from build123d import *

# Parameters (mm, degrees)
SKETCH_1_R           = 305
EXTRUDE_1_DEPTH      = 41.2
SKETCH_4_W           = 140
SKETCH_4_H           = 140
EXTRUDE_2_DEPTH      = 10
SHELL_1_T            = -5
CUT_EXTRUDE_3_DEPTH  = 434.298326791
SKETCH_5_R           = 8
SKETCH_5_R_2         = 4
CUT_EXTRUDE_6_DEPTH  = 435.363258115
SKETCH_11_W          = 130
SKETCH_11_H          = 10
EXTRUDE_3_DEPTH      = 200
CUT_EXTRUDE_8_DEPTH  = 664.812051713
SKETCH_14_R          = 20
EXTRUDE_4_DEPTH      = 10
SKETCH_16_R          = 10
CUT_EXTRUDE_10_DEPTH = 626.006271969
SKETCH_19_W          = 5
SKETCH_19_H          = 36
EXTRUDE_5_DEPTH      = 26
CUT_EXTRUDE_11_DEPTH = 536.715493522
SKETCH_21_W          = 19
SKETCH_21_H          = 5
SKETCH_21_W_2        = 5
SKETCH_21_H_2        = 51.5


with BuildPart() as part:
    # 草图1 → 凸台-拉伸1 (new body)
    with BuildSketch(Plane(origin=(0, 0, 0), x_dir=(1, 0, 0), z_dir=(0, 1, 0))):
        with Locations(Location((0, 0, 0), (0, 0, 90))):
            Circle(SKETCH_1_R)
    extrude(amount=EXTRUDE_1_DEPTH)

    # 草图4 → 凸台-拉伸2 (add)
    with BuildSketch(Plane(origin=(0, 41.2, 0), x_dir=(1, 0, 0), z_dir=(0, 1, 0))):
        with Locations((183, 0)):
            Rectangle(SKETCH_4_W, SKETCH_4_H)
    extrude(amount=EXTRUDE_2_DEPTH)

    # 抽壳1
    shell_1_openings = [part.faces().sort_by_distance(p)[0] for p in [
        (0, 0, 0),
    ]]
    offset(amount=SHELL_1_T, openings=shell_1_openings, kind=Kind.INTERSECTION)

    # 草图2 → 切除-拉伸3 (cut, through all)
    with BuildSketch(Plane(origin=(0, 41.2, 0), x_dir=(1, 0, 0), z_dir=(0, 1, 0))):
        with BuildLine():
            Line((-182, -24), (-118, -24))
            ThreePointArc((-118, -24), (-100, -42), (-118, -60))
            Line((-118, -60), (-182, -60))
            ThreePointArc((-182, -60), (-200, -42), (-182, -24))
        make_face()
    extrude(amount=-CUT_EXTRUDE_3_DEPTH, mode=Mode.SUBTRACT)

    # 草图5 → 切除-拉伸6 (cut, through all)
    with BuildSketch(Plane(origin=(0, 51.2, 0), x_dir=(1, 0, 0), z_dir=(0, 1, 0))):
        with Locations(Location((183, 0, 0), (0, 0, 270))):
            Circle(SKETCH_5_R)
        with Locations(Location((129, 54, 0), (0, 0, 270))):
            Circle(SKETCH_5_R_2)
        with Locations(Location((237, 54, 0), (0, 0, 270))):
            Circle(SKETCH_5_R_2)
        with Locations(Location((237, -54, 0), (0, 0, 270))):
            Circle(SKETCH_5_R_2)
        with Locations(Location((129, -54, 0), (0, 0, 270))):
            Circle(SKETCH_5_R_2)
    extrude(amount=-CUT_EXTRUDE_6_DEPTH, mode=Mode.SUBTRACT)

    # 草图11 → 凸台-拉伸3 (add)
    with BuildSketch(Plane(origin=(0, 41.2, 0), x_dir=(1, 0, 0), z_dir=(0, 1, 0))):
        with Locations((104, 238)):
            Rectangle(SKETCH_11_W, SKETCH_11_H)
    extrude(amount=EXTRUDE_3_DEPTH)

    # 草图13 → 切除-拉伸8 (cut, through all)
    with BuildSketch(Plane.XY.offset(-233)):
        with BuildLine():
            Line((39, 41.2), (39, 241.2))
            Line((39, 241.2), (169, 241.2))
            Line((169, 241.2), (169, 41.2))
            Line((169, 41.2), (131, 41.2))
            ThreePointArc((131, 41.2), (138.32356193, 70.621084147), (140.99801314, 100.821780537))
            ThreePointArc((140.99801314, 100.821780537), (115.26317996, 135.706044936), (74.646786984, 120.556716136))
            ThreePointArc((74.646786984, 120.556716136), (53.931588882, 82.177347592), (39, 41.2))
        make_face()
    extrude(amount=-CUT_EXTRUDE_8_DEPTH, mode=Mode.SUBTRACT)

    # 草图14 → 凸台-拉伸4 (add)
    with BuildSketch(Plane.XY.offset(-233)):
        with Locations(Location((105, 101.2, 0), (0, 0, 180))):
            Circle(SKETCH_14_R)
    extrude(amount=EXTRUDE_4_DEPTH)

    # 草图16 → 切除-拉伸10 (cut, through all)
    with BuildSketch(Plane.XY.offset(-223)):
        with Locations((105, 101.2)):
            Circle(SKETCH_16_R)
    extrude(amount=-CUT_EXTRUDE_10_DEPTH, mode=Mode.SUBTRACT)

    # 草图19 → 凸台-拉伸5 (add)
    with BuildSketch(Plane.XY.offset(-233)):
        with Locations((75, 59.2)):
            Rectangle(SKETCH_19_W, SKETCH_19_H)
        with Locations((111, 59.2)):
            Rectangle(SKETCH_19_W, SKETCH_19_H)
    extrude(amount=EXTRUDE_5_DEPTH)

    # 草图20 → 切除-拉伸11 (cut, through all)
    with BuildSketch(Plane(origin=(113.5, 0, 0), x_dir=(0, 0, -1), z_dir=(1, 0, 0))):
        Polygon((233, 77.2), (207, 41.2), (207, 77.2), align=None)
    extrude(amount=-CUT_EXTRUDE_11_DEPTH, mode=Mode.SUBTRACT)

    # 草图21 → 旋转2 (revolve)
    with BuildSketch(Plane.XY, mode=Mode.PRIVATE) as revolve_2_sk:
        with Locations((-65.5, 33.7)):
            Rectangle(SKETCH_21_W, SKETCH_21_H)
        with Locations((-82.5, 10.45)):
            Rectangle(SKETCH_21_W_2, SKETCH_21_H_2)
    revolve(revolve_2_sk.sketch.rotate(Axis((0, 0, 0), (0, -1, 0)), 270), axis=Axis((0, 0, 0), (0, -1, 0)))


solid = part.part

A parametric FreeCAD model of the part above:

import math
import FreeCAD as App
import Part
import Sketcher

V = App.Vector
Q = App.Units.Quantity


def faces_at(feature, points):
    """Names of the faces that lie closest to the given points."""
    faces = feature.Shape.Faces
    near = lambda p: min(range(len(faces)), key=lambda i: faces[i].distToShape(Part.Vertex(*p))[0])
    return sorted({f"Face{near(p) + 1}" for p in points})

doc = App.newDocument("Part")
body = doc.addObject("PartDesign::Body", "Body")

# Sketch on XZ plane
sketch1 = doc.addObject("Sketcher::SketchObject", "Sketch")
body.addObject(sketch1)
sketch1.AttachmentSupport = (doc.XZ_Plane, [""])
sketch1.MapMode = "FlatFace"
sketch1.addGeometry(Part.Circle(V(0, 0, 0), V(0, 0, 1), 305), False)
sketch1.addConstraint([
    Sketcher.Constraint("Coincident", 0, 3, -1, 1),
    Sketcher.Constraint("Diameter", 0, Q("610 mm")),
])
pad1 = doc.addObject("PartDesign::Pad", "Pad")
body.addObject(pad1)
pad1.Profile = sketch1
pad1.Length = 41.2
pad1.Reversed = True

# Sketch on XZ plane
sketch2 = doc.addObject("Sketcher::SketchObject", "Sketch001")
body.addObject(sketch2)
sketch2.AttachmentSupport = (doc.XZ_Plane, [""])
sketch2.MapMode = "FlatFace"
sketch2.AttachmentOffset = App.Placement(V(0, 0, -41.2), App.Rotation())
sketch2.addGeometry([
    Part.LineSegment(V(113, -70, 0), V(113, 70, 0)),
    Part.LineSegment(V(113, 70, 0), V(253, 70, 0)),
    Part.LineSegment(V(253, 70, 0), V(253, -70, 0)),
    Part.LineSegment(V(253, -70, 0), V(113, -70, 0)),
], False)
sketch2.addConstraint([
    Sketcher.Constraint("Coincident", 0, 2, 1, 1),
    Sketcher.Constraint("Coincident", 1, 2, 2, 1),
    Sketcher.Constraint("Coincident", 2, 2, 3, 1),
    Sketcher.Constraint("Coincident", 3, 2, 0, 1),
    Sketcher.Constraint("Vertical", 0),
    Sketcher.Constraint("Horizontal", 1),
    Sketcher.Constraint("Vertical", 2),
    Sketcher.Constraint("Horizontal", 3),
    Sketcher.Constraint("Equal", 3, 0),
    Sketcher.Constraint("DistanceX", 1, 1, 1, 2, Q("140 mm")),
    Sketcher.Constraint("DistanceX", -1, 1, 0, 2, Q("113 mm")),
    Sketcher.Constraint("DistanceY", -1, 1, 0, 2, Q("70 mm")),
])
pad2 = doc.addObject("PartDesign::Pad", "Pad001")
body.addObject(pad2)
pad2.Profile = sketch2
pad2.Length = 10
pad2.Reversed = True
doc.recompute()

thickness = doc.addObject("PartDesign::Thickness", "Thickness")
body.addObject(thickness)
thickness.Base = (pad2, faces_at(pad2, [(0, 0, 0)]))
thickness.Value = 5
thickness.Reversed = True
thickness.Join = "Intersection"

# Sketch on XZ plane
sketch3 = doc.addObject("Sketcher::SketchObject", "Sketch002")
body.addObject(sketch3)
sketch3.AttachmentSupport = (doc.XZ_Plane, [""])
sketch3.MapMode = "FlatFace"
sketch3.AttachmentOffset = App.Placement(V(0, 0, -41.2), App.Rotation())
sketch3.addGeometry([
    Part.LineSegment(V(-118, 24, 0), V(-182, 24, 0)),
    Part.ArcOfCircle(Part.Circle(V(-182, 42, 0), V(0, 0, 1), 18), math.radians(90), math.radians(270)),
    Part.LineSegment(V(-182, 60, 0), V(-118, 60, 0)),
    Part.ArcOfCircle(Part.Circle(V(-118, 42, 0), V(0, 0, 1), 18), math.radians(-90), math.radians(90)),
], False)
sketch3.addConstraint([
    Sketcher.Constraint("Tangent", 0, 2, 1, 2),
    Sketcher.Constraint("Tangent", 1, 1, 2, 1),
    Sketcher.Constraint("Tangent", 2, 2, 3, 2),
    Sketcher.Constraint("Tangent", 3, 1, 0, 1),
    Sketcher.Constraint("Horizontal", 0),
    Sketcher.Constraint("Horizontal", 2),
    Sketcher.Constraint("Radius", 1, Q("18 mm")),
    Sketcher.Constraint("DistanceX", 0, 2, 0, 1, Q("64 mm")),
    Sketcher.Constraint("DistanceX", 1, 3, -1, 1, Q("182 mm")),
    Sketcher.Constraint("DistanceY", -1, 1, 1, 3, Q("42 mm")),
])
pocket1 = doc.addObject("PartDesign::Pocket", "Pocket")
body.addObject(pocket1)
pocket1.Profile = sketch3
pocket1.Type = "ThroughAll"
pocket1.Reversed = True

# Sketch on XZ plane
sketch4 = doc.addObject("Sketcher::SketchObject", "Sketch003")
body.addObject(sketch4)
sketch4.AttachmentSupport = (doc.XZ_Plane, [""])
sketch4.MapMode = "FlatFace"
sketch4.AttachmentOffset = App.Placement(V(0, 0, -51.2), App.Rotation())
sketch4.addGeometry([
    Part.Circle(V(183, 0, 0), V(0, 0, 1), 8),  # 0
    Part.Circle(V(129, -54, 0), V(0, 0, 1), 4),  # 1
    Part.Circle(V(237, -54, 0), V(0, 0, 1), 4),  # 2
    Part.Circle(V(237, 54, 0), V(0, 0, 1), 4),  # 3
    Part.Circle(V(129, 54, 0), V(0, 0, 1), 4),  # 4
], False)
sketch4.addConstraint([
    Sketcher.Constraint("Equal", 1, 2),
    Sketcher.Constraint("Equal", 2, 3),
    Sketcher.Constraint("Equal", 3, 4),
    Sketcher.Constraint("Symmetric", 2, 3, 3, 3, -1),
    Sketcher.Constraint("Symmetric", 1, 3, 4, 3, -1),
    Sketcher.Constraint("PointOnObject", 0, 3, -1),
    Sketcher.Constraint("Horizontal", 1, 3, 2, 3),
    Sketcher.Constraint("Diameter", 0, Q("16 mm")),
    Sketcher.Constraint("Diameter", 1, Q("8 mm")),
    Sketcher.Constraint("DistanceX", -1, 1, 0, 3, Q("183 mm")),
    Sketcher.Constraint("DistanceX", -1, 1, 1, 3, Q("129 mm")),
    Sketcher.Constraint("DistanceY", 1, 3, -1, 1, Q("54 mm")),
    Sketcher.Constraint("DistanceX", -1, 1, 2, 3, Q("237 mm")),
])
pocket2 = doc.addObject("PartDesign::Pocket", "Pocket001")
body.addObject(pocket2)
pocket2.Profile = sketch4
pocket2.Type = "ThroughAll"
pocket2.Reversed = True

# Sketch on XZ plane
sketch5 = doc.addObject("Sketcher::SketchObject", "Sketch004")
body.addObject(sketch5)
sketch5.AttachmentSupport = (doc.XZ_Plane, [""])
sketch5.MapMode = "FlatFace"
sketch5.AttachmentOffset = App.Placement(V(0, 0, -41.2), App.Rotation())
sketch5.addGeometry([
    Part.LineSegment(V(39, -243, 0), V(39, -233, 0)),
    Part.LineSegment(V(39, -233, 0), V(169, -233, 0)),
    Part.LineSegment(V(169, -233, 0), V(169, -243, 0)),
    Part.LineSegment(V(169, -243, 0), V(39, -243, 0)),
], False)
sketch5.addConstraint([
    Sketcher.Constraint("Coincident", 0, 2, 1, 1),
    Sketcher.Constraint("Coincident", 1, 2, 2, 1),
    Sketcher.Constraint("Coincident", 2, 2, 3, 1),
    Sketcher.Constraint("Coincident", 3, 2, 0, 1),
    Sketcher.Constraint("Vertical", 0),
    Sketcher.Constraint("Horizontal", 1),
    Sketcher.Constraint("Vertical", 2),
    Sketcher.Constraint("Horizontal", 3),
    Sketcher.Constraint("DistanceX", 1, 1, 1, 2, Q("130 mm")),
    Sketcher.Constraint("DistanceY", 0, 1, 0, 2, Q("10 mm")),
    Sketcher.Constraint("DistanceX", -1, 1, 0, 2, Q("39 mm")),
    Sketcher.Constraint("DistanceY", 0, 2, -1, 1, Q("233 mm")),
])
pad3 = doc.addObject("PartDesign::Pad", "Pad002")
body.addObject(pad3)
pad3.Profile = sketch5
pad3.Length = 200
pad3.Reversed = True

# Sketch on XY plane
sketch6 = doc.addObject("Sketcher::SketchObject", "Sketch005")
body.addObject(sketch6)
sketch6.AttachmentSupport = (doc.XY_Plane, [""])
sketch6.MapMode = "FlatFace"
sketch6.AttachmentOffset = App.Placement(V(0, 0, -233), App.Rotation())
sketch6.addGeometry([
    Part.LineSegment(V(39, 241, 0), V(39, 41, 0)),  # 0
    Part.ArcOfCircle(Part.Circle(V(328, -41, 0), V(0, 0, 1), 300), math.radians(147.47), math.radians(164.15)),  # 1
    Part.ArcOfCircle(Part.Circle(V(105, 101, 0), V(0, 0, 1), 36), math.radians(-1), math.radians(147)),  # 2
    Part.ArcOfCircle(Part.Circle(V(-54, 103, 0), V(0, 0, 1), 195), math.radians(-18.44), math.radians(-0.6)),  # 3
    Part.LineSegment(V(131, 41, 0), V(169, 41, 0)),  # 4
    Part.LineSegment(V(169, 41, 0), V(169, 241, 0)),  # 5
    Part.LineSegment(V(169, 241, 0), V(39, 241, 0)),  # 6
], False)
sketch6.addConstraint([
    Sketcher.Constraint("Coincident", 0, 2, 1, 2),
    Sketcher.Constraint("Tangent", 1, 1, 2, 2),
    Sketcher.Constraint("Tangent", 2, 1, 3, 2),
    Sketcher.Constraint("Coincident", 3, 1, 4, 1),
    Sketcher.Constraint("Coincident", 4, 2, 5, 1),
    Sketcher.Constraint("Coincident", 5, 2, 6, 1),
    Sketcher.Constraint("Coincident", 6, 2, 0, 1),
    Sketcher.Constraint("Vertical", 0),
    Sketcher.Constraint("Horizontal", 4),
    Sketcher.Constraint("Vertical", 5),
    Sketcher.Constraint("Horizontal", 6),
    Sketcher.Constraint("Horizontal", 0, 2, 3, 1),
    Sketcher.Constraint("Radius", 1, Q("300 mm")),
    Sketcher.Constraint("Radius", 2, Q("36 mm")),
    Sketcher.Constraint("Radius", 3, Q("195 mm")),
    Sketcher.Constraint("DistanceX", 4, 1, 4, 2, Q("38 mm")),
    Sketcher.Constraint("DistanceX", 6, 2, 6, 1, Q("130 mm")),
    Sketcher.Constraint("DistanceY", 0, 2, 0, 1, Q("200 mm")),
    Sketcher.Constraint("DistanceX", -1, 1, 2, 3, Q("105 mm")),
    Sketcher.Constraint("DistanceX", -1, 1, 0, 2, Q("39 mm")),
    Sketcher.Constraint("DistanceY", 0, 2, 2, 3, Q("60 mm")),
    Sketcher.Constraint("DistanceY", -1, 1, 2, 3, Q("101.2 mm")),
])
pocket3 = doc.addObject("PartDesign::Pocket", "Pocket002")
body.addObject(pocket3)
pocket3.Profile = sketch6
pocket3.Type = "ThroughAll"

# Sketch on XY plane
sketch7 = doc.addObject("Sketcher::SketchObject", "Sketch006")
body.addObject(sketch7)
sketch7.AttachmentSupport = (doc.XY_Plane, [""])
sketch7.MapMode = "FlatFace"
sketch7.AttachmentOffset = App.Placement(V(0, 0, -233), App.Rotation())
sketch7.addGeometry(Part.Circle(V(105, 101, 0), V(0, 0, 1), 20), False)
sketch7.addConstraint([
    Sketcher.Constraint("Diameter", 0, Q("40 mm")),
    Sketcher.Constraint("DistanceX", -1, 1, 0, 3, Q("105 mm")),
    Sketcher.Constraint("DistanceY", -1, 1, 0, 3, Q("101.2 mm")),
])
pad4 = doc.addObject("PartDesign::Pad", "Pad003")
body.addObject(pad4)
pad4.Profile = sketch7
pad4.Length = 10

# Sketch on XY plane
sketch8 = doc.addObject("Sketcher::SketchObject", "Sketch007")
body.addObject(sketch8)
sketch8.AttachmentSupport = (doc.XY_Plane, [""])
sketch8.MapMode = "FlatFace"
sketch8.AttachmentOffset = App.Placement(V(0, 0, -223), App.Rotation())
sketch8.addGeometry(Part.Circle(V(105, 101, 0), V(0, 0, 1), 10), False)
sketch8.addConstraint([
    Sketcher.Constraint("Diameter", 0, Q("20 mm")),
    Sketcher.Constraint("DistanceX", -1, 1, 0, 3, Q("105 mm")),
    Sketcher.Constraint("DistanceY", -1, 1, 0, 3, Q("101.2 mm")),
])
pocket4 = doc.addObject("PartDesign::Pocket", "Pocket003")
body.addObject(pocket4)
pocket4.Profile = sketch8
pocket4.Type = "ThroughAll"

# Sketch on XY plane
sketch9 = doc.addObject("Sketcher::SketchObject", "Sketch008")
body.addObject(sketch9)
sketch9.AttachmentSupport = (doc.XY_Plane, [""])
sketch9.MapMode = "FlatFace"
sketch9.AttachmentOffset = App.Placement(V(0, 0, -233), App.Rotation())
sketch9.addGeometry([
    Part.LineSegment(V(72, 77, 0), V(72, 41, 0)),  # 0
    Part.LineSegment(V(72, 41, 0), V(78, 41, 0)),  # 1
    Part.LineSegment(V(78, 41, 0), V(78, 77, 0)),  # 2
    Part.LineSegment(V(78, 77, 0), V(72, 77, 0)),  # 3
    Part.LineSegment(V(108, 77, 0), V(108, 41, 0)),  # 4
    Part.LineSegment(V(108, 41, 0), V(114, 41, 0)),  # 5
    Part.LineSegment(V(114, 41, 0), V(114, 77, 0)),  # 6
    Part.LineSegment(V(114, 77, 0), V(108, 77, 0)),  # 7
], False)
sketch9.addConstraint([
    Sketcher.Constraint("Coincident", 0, 2, 1, 1),
    Sketcher.Constraint("Coincident", 1, 2, 2, 1),
    Sketcher.Constraint("Coincident", 2, 2, 3, 1),
    Sketcher.Constraint("Coincident", 3, 2, 0, 1),
    Sketcher.Constraint("Coincident", 4, 2, 5, 1),
    Sketcher.Constraint("Coincident", 5, 2, 6, 1),
    Sketcher.Constraint("Coincident", 6, 2, 7, 1),
    Sketcher.Constraint("Coincident", 7, 2, 4, 1),
    Sketcher.Constraint("Vertical", 0),
    Sketcher.Constraint("Horizontal", 1),
    Sketcher.Constraint("Vertical", 2),
    Sketcher.Constraint("Horizontal", 3),
    Sketcher.Constraint("Vertical", 4),
    Sketcher.Constraint("Horizontal", 5),
    Sketcher.Constraint("Vertical", 6),
    Sketcher.Constraint("Horizontal", 7),
    Sketcher.Constraint("Horizontal", 1, 2, 4, 2),
    Sketcher.Constraint("Horizontal", 3, 2, 6, 2),
    Sketcher.Constraint("Equal", 3, 5),
    Sketcher.Constraint("DistanceX", 1, 1, 1, 2, Q("5 mm")),
    Sketcher.Constraint("DistanceY", 0, 2, 0, 1, Q("36 mm")),
    Sketcher.Constraint("DistanceX", 1, 2, 4, 2, Q("31 mm")),
    Sketcher.Constraint("DistanceX", -1, 1, 0, 2, Q("72.5 mm")),
    Sketcher.Constraint("DistanceY", -1, 1, 0, 2, Q("41.2 mm")),
])
pad5 = doc.addObject("PartDesign::Pad", "Pad004")
body.addObject(pad5)
pad5.Profile = sketch9
pad5.Length = 26

# Sketch on YZ plane
sketch10 = doc.addObject("Sketcher::SketchObject", "Sketch009")
body.addObject(sketch10)
sketch10.AttachmentSupport = (doc.YZ_Plane, [""])
sketch10.MapMode = "FlatFace"
sketch10.AttachmentOffset = App.Placement(V(0, 0, 113.5), App.Rotation())
sketch10.addGeometry([
    Part.LineSegment(V(41, -207, 0), V(77, -233, 0)),
    Part.LineSegment(V(77, -233, 0), V(77, -207, 0)),
    Part.LineSegment(V(77, -207, 0), V(41, -207, 0)),
], False)
sketch10.addConstraint([
    Sketcher.Constraint("Coincident", 0, 2, 1, 1),
    Sketcher.Constraint("Coincident", 1, 2, 2, 1),
    Sketcher.Constraint("Coincident", 2, 2, 0, 1),
    Sketcher.Constraint("Vertical", 1),
    Sketcher.Constraint("Horizontal", 2),
    Sketcher.Constraint("DistanceX", 2, 2, 2, 1, Q("36 mm")),
    Sketcher.Constraint("DistanceY", 1, 1, 1, 2, Q("26 mm")),
    Sketcher.Constraint("DistanceY", 0, 2, -1, 1, Q("233 mm")),
    Sketcher.Constraint("DistanceX", -1, 1, 0, 2, Q("77.2 mm")),
])
pocket5 = doc.addObject("PartDesign::Pocket", "Pocket004")
body.addObject(pocket5)
pocket5.Profile = sketch10
pocket5.Type = "ThroughAll"

# Sketch on XY plane
sketch11 = doc.addObject("Sketcher::SketchObject", "Sketch010")
body.addObject(sketch11)
sketch11.AttachmentSupport = (doc.XY_Plane, [""])
sketch11.MapMode = "FlatFace"
sketch11.addGeometry([
    Part.LineSegment(V(-75, 36, 0), V(-75, 31, 0)),  # 0
    Part.LineSegment(V(-75, 31, 0), V(-56, 31, 0)),  # 1
    Part.LineSegment(V(-56, 31, 0), V(-56, 36, 0)),  # 2
    Part.LineSegment(V(-56, 36, 0), V(-75, 36, 0)),  # 3
    Part.LineSegment(V(-85, 36, 0), V(-85, -15, 0)),  # 4
    Part.LineSegment(V(-85, -15, 0), V(-80, -15, 0)),  # 5
    Part.LineSegment(V(-80, -15, 0), V(-80, 36, 0)),  # 6
    Part.LineSegment(V(-80, 36, 0), V(-85, 36, 0)),  # 7
], False)
sketch11.addConstraint([
    Sketcher.Constraint("Coincident", 0, 2, 1, 1),
    Sketcher.Constraint("Coincident", 1, 2, 2, 1),
    Sketcher.Constraint("Coincident", 2, 2, 3, 1),
    Sketcher.Constraint("Coincident", 3, 2, 0, 1),
    Sketcher.Constraint("Coincident", 4, 2, 5, 1),
    Sketcher.Constraint("Coincident", 5, 2, 6, 1),
    Sketcher.Constraint("Coincident", 6, 2, 7, 1),
    Sketcher.Constraint("Coincident", 7, 2, 4, 1),
    Sketcher.Constraint("Vertical", 0),
    Sketcher.Constraint("Horizontal", 1),
    Sketcher.Constraint("Vertical", 2),
    Sketcher.Constraint("Horizontal", 3),
    Sketcher.Constraint("Vertical", 4),
    Sketcher.Constraint("Horizontal", 5),
    Sketcher.Constraint("Vertical", 6),
    Sketcher.Constraint("Horizontal", 7),
    Sketcher.Constraint("Horizontal", 3, 2, 6, 2),
    Sketcher.Constraint("Equal", 7, 0),
    Sketcher.Constraint("DistanceX", 1, 1, 1, 2, Q("19 mm")),
    Sketcher.Constraint("DistanceX", 5, 1, 5, 2, Q("5 mm")),
    Sketcher.Constraint("DistanceY", 4, 2, 4, 1, Q("51.5 mm")),
    Sketcher.Constraint("DistanceX", 0, 2, -1, 1, Q("75 mm")),
    Sketcher.Constraint("DistanceX", 4, 2, -1, 1, Q("85 mm")),
    Sketcher.Constraint("DistanceY", -1, 1, 0, 2, Q("31.2 mm")),
])
revolution = doc.addObject("PartDesign::Revolution", "Revolution")
body.addObject(revolution)
revolution.Profile = sketch11
revolution.ReferenceAxis = (sketch11, ["V_Axis"])
revolution.Angle = 360

doc.recompute()
